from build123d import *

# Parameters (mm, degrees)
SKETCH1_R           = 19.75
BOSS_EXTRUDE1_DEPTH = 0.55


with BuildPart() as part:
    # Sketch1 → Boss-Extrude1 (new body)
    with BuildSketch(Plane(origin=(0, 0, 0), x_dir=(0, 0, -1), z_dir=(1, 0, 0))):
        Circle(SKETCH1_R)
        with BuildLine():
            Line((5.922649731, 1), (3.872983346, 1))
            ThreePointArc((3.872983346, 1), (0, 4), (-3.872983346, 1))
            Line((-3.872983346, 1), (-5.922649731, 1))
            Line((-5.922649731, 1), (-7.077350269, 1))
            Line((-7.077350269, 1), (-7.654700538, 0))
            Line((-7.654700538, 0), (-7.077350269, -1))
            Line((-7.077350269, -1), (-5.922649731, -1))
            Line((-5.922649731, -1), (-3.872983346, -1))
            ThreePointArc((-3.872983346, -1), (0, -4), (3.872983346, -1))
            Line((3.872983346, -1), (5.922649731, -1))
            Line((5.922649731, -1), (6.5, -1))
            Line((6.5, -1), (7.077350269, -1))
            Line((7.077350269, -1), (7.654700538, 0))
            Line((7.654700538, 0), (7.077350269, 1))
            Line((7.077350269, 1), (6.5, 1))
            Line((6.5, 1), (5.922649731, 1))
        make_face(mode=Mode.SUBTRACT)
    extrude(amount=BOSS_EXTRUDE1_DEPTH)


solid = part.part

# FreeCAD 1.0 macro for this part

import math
import FreeCAD as App
import Part
import Sketcher

V = App.Vector
Q = App.Units.Quantity

doc = App.newDocument("Part")
body = doc.addObject("PartDesign::Body", "Body")

# Sketch on YZ plane
sketch1 = doc.addObject("Sketcher::SketchObject", "Sketch")
body.addObject(sketch1)
sketch1.AttachmentSupport = (doc.YZ_Plane, [""])
sketch1.MapMode = "FlatFace"
sketch1.addGeometry(Part.Circle(V(0, 0, 0), V(0, 0, 1), 19.75), False)
sketch1.addGeometry(Part.ArcOfCircle(Part.Circle(V(0, 0, 0), V(0, 0, 1), 4), math.radians(-75.522488), math.radians(75.522488)), False)
sketch1.addGeometry(Part.LineSegment(V(1, -3.872983, 0), V(1, -7.07735, 0)), False)
sketch1.addGeometry(Part.LineSegment(V(1, -7.07735, 0), V(0, -7.654701, 0)), False)
sketch1.addGeometry(Part.LineSegment(V(0, -7.654701, 0), V(-1, -7.07735, 0)), False)
sketch1.addGeometry(Part.LineSegment(V(-1, -7.07735, 0), V(-1, -3.872983, 0)), False)
sketch1.addGeometry(Part.ArcOfCircle(Part.Circle(V(0, 0, 0), V(0, 0, 1), 4), math.radians(104.477512), math.radians(255.522488)), False)
sketch1.addGeometry(Part.LineSegment(V(-1, 3.872983, 0), V(-1, 7.07735, 0)), False)
sketch1.addGeometry(Part.LineSegment(V(-1, 7.07735, 0), V(0, 7.654701, 0)), False)
sketch1.addGeometry(Part.LineSegment(V(0, 7.654701, 0), V(1, 7.07735, 0)), False)
sketch1.addGeometry(Part.LineSegment(V(1, 7.07735, 0), V(1, 3.872983, 0)), False)
sketch1.addConstraint(Sketcher.Constraint("Coincident", 1, 1, 2, 1))
sketch1.addConstraint(Sketcher.Constraint("Coincident", 2, 2, 3, 1))
sketch1.addConstraint(Sketcher.Constraint("Coincident", 3, 2, 4, 1))
sketch1.addConstraint(Sketcher.Constraint("Coincident", 4, 2, 5, 1))
sketch1.addConstraint(Sketcher.Constraint("Coincident", 5, 2, 6, 2))
sketch1.addConstraint(Sketcher.Constraint("Coincident", 6, 1, 7, 1))
sketch1.addConstraint(Sketcher.Constraint("Coincident", 7, 2, 8, 1))
sketch1.addConstraint(Sketcher.Constraint("Coincident", 8, 2, 9, 1))
sketch1.addConstraint(Sketcher.Constraint("Coincident", 9, 2, 10, 1))
sketch1.addConstraint(Sketcher.Constraint("Coincident", 10, 2, 1, 2))
sketch1.addConstraint(Sketcher.Constraint("Vertical", 2))
sketch1.addConstraint(Sketcher.Constraint("Vertical", 5))
sketch1.addConstraint(Sketcher.Constraint("Vertical", 7))
sketch1.addConstraint(Sketcher.Constraint("Vertical", 10))
sketch1.addConstraint(Sketcher.Constraint("Coincident", 0, 3, -1, 1))
sketch1.addConstraint(Sketcher.Constraint("Coincident", 1, 3, -1, 1))
sketch1.addConstraint(Sketcher.Constraint("Coincident", 6, 3, -1, 1))
sketch1.addConstraint(Sketcher.Constraint("Equal", 1, 6))
sketch1.addConstraint(Sketcher.Constraint("Symmetric", 2, 2, 7, 2, -1, 1))
sketch1.addConstraint(Sketcher.Constraint("Symmetric", 3, 2, 8, 2, -1, 1))
sketch1.addConstraint(Sketcher.Constraint("Symmetric", 4, 2, 9, 2, -1, 1))
sketch1.addConstraint(Sketcher.Constraint("Symmetric", 2, 2, 4, 2, -2))
sketch1.addConstraint(Sketcher.Constraint("PointOnObject", 3, 2, -2))
sketch1.addConstraint(Sketcher.Constraint("Radius", 1, Q("4 mm")))
sketch1.addConstraint(Sketcher.Constraint("Diameter", 0, Q("39.5 mm")))
sketch1.addConstraint(Sketcher.Constraint("Angle", 3, Q("-150 deg")))
sketch1.addConstraint(Sketcher.Constraint("DistanceX", -1, 1, 1, 1, Q("1 mm")))
sketch1.addConstraint(Sketcher.Constraint("DistanceY", 3, 2, -1, 1, Q("7.654701 mm")))
pad1 = doc.addObject("PartDesign::Pad", "Pad")
body.addObject(pad1)
pad1.Profile = sketch1
pad1.Length = 0.55

doc.recompute()
